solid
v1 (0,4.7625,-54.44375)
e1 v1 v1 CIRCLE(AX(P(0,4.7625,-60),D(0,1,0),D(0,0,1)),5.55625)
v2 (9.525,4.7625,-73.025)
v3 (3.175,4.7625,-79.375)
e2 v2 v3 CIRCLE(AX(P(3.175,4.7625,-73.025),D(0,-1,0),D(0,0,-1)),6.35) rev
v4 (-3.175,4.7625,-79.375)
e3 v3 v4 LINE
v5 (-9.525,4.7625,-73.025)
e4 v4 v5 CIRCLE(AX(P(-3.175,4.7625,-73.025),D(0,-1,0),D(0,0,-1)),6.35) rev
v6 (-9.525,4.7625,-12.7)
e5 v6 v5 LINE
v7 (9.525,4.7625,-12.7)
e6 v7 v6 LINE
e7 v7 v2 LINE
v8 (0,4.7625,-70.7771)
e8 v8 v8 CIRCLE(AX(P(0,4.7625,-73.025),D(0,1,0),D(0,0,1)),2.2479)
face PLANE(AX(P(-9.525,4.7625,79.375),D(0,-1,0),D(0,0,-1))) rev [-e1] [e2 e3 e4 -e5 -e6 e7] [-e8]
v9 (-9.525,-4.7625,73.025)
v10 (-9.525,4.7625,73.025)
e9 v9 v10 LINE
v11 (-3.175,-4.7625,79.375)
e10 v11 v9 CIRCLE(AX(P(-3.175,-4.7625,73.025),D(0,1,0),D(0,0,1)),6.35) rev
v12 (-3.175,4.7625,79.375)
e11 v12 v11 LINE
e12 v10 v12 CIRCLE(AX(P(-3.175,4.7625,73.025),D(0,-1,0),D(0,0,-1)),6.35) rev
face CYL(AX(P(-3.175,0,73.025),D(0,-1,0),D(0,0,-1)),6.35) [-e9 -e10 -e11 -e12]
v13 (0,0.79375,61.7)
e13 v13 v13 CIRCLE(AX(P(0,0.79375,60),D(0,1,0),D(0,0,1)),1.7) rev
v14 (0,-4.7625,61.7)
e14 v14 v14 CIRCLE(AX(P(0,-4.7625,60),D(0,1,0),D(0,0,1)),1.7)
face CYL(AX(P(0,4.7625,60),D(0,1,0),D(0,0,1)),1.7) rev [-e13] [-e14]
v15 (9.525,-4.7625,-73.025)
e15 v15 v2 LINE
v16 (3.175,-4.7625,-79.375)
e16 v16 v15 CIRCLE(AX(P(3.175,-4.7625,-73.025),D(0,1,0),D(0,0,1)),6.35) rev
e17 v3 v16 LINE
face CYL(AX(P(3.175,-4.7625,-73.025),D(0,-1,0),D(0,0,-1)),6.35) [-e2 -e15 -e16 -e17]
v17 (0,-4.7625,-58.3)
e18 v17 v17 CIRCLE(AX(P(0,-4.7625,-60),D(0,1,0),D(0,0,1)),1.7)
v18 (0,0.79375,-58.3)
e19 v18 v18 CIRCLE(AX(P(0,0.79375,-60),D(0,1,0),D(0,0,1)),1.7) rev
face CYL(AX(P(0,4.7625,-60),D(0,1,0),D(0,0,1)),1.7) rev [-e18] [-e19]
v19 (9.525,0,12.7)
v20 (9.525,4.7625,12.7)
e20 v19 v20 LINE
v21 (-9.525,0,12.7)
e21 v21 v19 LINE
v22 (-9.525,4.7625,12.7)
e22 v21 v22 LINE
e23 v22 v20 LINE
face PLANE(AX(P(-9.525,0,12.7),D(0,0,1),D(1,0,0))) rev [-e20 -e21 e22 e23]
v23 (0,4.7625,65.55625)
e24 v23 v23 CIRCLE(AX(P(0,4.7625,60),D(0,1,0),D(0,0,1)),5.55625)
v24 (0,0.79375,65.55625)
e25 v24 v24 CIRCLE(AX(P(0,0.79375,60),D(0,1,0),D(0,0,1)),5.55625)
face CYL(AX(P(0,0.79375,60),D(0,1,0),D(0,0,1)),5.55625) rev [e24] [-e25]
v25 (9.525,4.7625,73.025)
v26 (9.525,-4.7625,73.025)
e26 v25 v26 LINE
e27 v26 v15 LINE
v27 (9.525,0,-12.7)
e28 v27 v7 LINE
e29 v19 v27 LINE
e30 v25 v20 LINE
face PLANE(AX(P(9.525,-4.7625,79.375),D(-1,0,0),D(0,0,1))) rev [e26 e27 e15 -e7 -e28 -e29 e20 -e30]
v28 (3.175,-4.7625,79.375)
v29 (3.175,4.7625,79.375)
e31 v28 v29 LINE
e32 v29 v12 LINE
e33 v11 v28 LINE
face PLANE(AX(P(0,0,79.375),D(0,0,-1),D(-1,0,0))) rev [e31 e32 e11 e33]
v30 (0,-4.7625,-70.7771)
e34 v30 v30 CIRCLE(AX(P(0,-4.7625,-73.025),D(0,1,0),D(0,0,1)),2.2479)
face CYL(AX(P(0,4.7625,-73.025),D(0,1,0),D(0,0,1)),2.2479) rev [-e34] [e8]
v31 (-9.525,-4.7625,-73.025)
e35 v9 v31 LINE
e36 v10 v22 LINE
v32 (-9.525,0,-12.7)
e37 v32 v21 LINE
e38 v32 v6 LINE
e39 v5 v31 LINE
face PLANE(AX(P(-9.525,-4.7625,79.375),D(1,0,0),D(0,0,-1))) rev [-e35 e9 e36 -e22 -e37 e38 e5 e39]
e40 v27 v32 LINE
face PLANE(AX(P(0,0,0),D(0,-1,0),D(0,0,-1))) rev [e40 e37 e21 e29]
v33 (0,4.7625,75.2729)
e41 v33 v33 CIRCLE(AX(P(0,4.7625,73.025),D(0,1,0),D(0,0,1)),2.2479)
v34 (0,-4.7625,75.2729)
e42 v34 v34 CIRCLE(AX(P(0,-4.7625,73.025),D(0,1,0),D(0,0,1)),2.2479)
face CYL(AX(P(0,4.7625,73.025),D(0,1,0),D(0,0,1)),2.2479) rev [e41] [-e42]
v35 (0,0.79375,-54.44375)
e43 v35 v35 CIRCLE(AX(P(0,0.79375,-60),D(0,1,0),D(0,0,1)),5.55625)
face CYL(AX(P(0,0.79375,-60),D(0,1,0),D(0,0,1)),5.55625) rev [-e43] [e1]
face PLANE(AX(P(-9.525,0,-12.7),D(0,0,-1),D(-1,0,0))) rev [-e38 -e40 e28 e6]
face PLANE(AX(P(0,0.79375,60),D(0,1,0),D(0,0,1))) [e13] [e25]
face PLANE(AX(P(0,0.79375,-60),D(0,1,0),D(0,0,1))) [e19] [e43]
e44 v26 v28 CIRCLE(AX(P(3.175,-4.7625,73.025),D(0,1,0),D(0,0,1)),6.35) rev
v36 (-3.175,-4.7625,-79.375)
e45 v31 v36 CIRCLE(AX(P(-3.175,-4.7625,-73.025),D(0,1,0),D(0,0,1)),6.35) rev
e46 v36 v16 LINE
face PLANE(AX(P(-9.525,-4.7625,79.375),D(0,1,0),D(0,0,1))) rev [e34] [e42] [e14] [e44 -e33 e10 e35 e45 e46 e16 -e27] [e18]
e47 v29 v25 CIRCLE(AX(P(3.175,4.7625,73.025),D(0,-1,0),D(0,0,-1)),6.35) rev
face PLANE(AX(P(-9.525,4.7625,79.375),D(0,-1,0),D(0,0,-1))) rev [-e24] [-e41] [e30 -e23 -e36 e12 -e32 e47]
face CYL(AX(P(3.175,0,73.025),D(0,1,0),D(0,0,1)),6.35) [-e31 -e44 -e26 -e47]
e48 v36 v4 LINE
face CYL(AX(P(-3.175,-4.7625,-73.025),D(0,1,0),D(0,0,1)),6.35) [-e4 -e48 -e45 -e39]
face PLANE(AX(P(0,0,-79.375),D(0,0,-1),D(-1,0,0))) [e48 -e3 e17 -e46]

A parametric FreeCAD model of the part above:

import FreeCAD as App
import Part
import Sketcher

V = App.Vector
Q = App.Units.Quantity


def edges_at(feature, points):
    """Names of the edges that pass closest to the given points."""
    edges = feature.Shape.Edges
    near = lambda p: min(range(len(edges)), key=lambda i: edges[i].distToShape(Part.Vertex(*p))[0])
    return sorted({f"Edge{near(p) + 1}" for p in points})

doc = App.newDocument("Part")
body = doc.addObject("PartDesign::Body", "Body")

# Sketch on XY plane
sketch1 = body.newObject("Sketcher::SketchObject", "Sketch")
sketch1.AttachmentSupport = (doc.getObject("XY_Plane"), [""])
sketch1.MapMode = "FlatFace"
sketch1.addGeometry([
    Part.LineSegment(V(-10, 5, 0), V(-10, -5, 0)),
    Part.LineSegment(V(-10, -5, 0), V(10, -5, 0)),
    Part.LineSegment(V(10, -5, 0), V(10, 5, 0)),
    Part.LineSegment(V(10, 5, 0), V(-10, 5, 0)),
], False)
sketch1.addConstraint([
    Sketcher.Constraint("Coincident", 0, 2, 1, 1),
    Sketcher.Constraint("Coincident", 1, 2, 2, 1),
    Sketcher.Constraint("Coincident", 2, 2, 3, 1),
    Sketcher.Constraint("Coincident", 3, 2, 0, 1),
    Sketcher.Constraint("Vertical", 0),
    Sketcher.Constraint("Horizontal", 1),
    Sketcher.Constraint("Vertical", 2),
    Sketcher.Constraint("Horizontal", 3),
    Sketcher.Constraint("Symmetric", 0, 2, 2, 2, -1, 1),
    Sketcher.Constraint("DistanceX", 1, 1, 1, 2, Q("0.75 in")),
    Sketcher.Constraint("DistanceY", 0, 2, 0, 1, Q("0.375 in")),
])
pad1 = body.newObject("PartDesign::Pad", "Pad")
pad1.Profile = sketch1
pad1.Length = Q("6.25 in")
pad1.Midplane = True

# Sketch on XZ plane
sketch2 = body.newObject("Sketcher::SketchObject", "Sketch001")
sketch2.AttachmentSupport = (doc.getObject("XZ_Plane"), [""])
sketch2.MapMode = "FlatFace"
sketch2.AttachmentOffset = App.Placement(V(0, 0, -0.1875 * 25.4), App.Rotation())
sketch2.addGeometry([
    Part.LineSegment(V(-10, -13, 0), V(-10, 13, 0)),
    Part.LineSegment(V(-10, 13, 0), V(10, 13, 0)),
    Part.LineSegment(V(10, 13, 0), V(10, -13, 0)),
    Part.LineSegment(V(10, -13, 0), V(-10, -13, 0)),
], False)
sketch2.addConstraint([
    Sketcher.Constraint("Coincident", 0, 2, 1, 1),
    Sketcher.Constraint("Coincident", 1, 2, 2, 1),
    Sketcher.Constraint("Coincident", 2, 2, 3, 1),
    Sketcher.Constraint("Coincident", 3, 2, 0, 1),
    Sketcher.Constraint("Vertical", 0),
    Sketcher.Constraint("Horizontal", 1),
    Sketcher.Constraint("Vertical", 2),
    Sketcher.Constraint("Horizontal", 3),
    Sketcher.Constraint("Symmetric", 0, 2, 2, 2, -1, 1),
    Sketcher.Constraint("DistanceY", 0, 1, 0, 2, Q("1 in")),
    Sketcher.Constraint("DistanceX", 1, 1, 1, 2, Q("0.75 in")),
])
pocket1 = body.newObject("PartDesign::Pocket", "Pocket")
pocket1.Profile = sketch2
pocket1.Length = Q("0.1875 in")
pocket1.Reversed = True

# Sketch on XZ plane
sketch3 = body.newObject("Sketcher::SketchObject", "Sketch002")
sketch3.AttachmentSupport = (doc.getObject("XZ_Plane"), [""])
sketch3.MapMode = "FlatFace"
sketch3.AttachmentOffset = App.Placement(V(0, 0, -0.1875 * 25.4), App.Rotation())
sketch3.addGeometry([
    Part.Circle(V(0, 60, 0), V(0, 0, 1), 1.7),
    Part.Circle(V(0, -60, 0), V(0, 0, 1), 1.7),
], False)
sketch3.addConstraint([
    Sketcher.Constraint("Equal", 0, 1),
    Sketcher.Constraint("Symmetric", 0, 3, 1, 3, -1, 1),
    Sketcher.Constraint("PointOnObject", 0, 3, -2),
    Sketcher.Constraint("Diameter", 0, 3.4),
    Sketcher.Constraint("DistanceY", -1, 1, 0, 3, 60.0),
])
doc.recompute()
hole = body.newObject("PartDesign::Hole", "Hole")
hole.Profile = sketch3
hole.ThreadType = "None"
hole.Diameter = 3.4
hole.DepthType = "ThroughAll"
hole.Reversed = True

# Sketch on XZ plane
sketch4 = body.newObject("Sketcher::SketchObject", "Sketch003")
sketch4.AttachmentSupport = (doc.getObject("XZ_Plane"), [""])
sketch4.MapMode = "FlatFace"
sketch4.AttachmentOffset = App.Placement(V(0, 0, -0.1875 * 25.4), App.Rotation())
sketch4.addGeometry([
    Part.Circle(V(0, 60, 0), V(0, 0, 1), 6),
    Part.Circle(V(0, -60, 0), V(0, 0, 1), 6),
], False)
sketch4.addConstraint([
    Sketcher.Constraint("Equal", 0, 1),
    Sketcher.Constraint("Symmetric", 0, 3, 1, 3, -1, 1),
    Sketcher.Constraint("PointOnObject", 0, 3, -2),
    Sketcher.Constraint("Diameter", 0, Q("0.4375 in")),
    Sketcher.Constraint("DistanceY", -1, 1, 0, 3, 60.0),
])
pocket2 = body.newObject("PartDesign::Pocket", "Pocket001")
pocket2.Profile = sketch4
pocket2.Length = Q("0.15625 in")
pocket2.Reversed = True

# Sketch on XZ plane
sketch5 = body.newObject("Sketcher::SketchObject", "Sketch004")
sketch5.AttachmentSupport = (doc.getObject("XZ_Plane"), [""])
sketch5.MapMode = "FlatFace"
sketch5.AttachmentOffset = App.Placement(V(0, 0, -0.1875 * 25.4), App.Rotation())
sketch5.addGeometry([
    Part.Circle(V(0, 73, 0), V(0, 0, 1), 2.2),
    Part.Circle(V(0, -73, 0), V(0, 0, 1), 2.2),
], False)
sketch5.addConstraint([
    Sketcher.Constraint("Equal", 0, 1),
    Sketcher.Constraint("Symmetric", 0, 3, 1, 3, -1, 1),
    Sketcher.Constraint("PointOnObject", 0, 3, -2),
    Sketcher.Constraint("Diameter", 0, Q("0.177 in")),
    Sketcher.Constraint("DistanceY", 1, 3, 0, 3, Q("5.75 in")),
])
doc.recompute()
hole2 = body.newObject("PartDesign::Hole", "Hole001")
hole2.Profile = sketch5
hole2.ThreadType = "None"
hole2.Diameter = Q("0.177 in")
hole2.DepthType = "ThroughAll"
hole2.Reversed = True
doc.recompute()

fillet = body.newObject("PartDesign::Fillet", "Fillet")
fillet.Base = (hole2, edges_at(hole2, [
    (-9.525, 0, 79.375),
    (9.525, 0, 79.375),
    (-9.525, 0, -79.375),
    (9.525, 0, -79.375),
]))
fillet.Radius = Q("0.25 in")

doc.recompute()
